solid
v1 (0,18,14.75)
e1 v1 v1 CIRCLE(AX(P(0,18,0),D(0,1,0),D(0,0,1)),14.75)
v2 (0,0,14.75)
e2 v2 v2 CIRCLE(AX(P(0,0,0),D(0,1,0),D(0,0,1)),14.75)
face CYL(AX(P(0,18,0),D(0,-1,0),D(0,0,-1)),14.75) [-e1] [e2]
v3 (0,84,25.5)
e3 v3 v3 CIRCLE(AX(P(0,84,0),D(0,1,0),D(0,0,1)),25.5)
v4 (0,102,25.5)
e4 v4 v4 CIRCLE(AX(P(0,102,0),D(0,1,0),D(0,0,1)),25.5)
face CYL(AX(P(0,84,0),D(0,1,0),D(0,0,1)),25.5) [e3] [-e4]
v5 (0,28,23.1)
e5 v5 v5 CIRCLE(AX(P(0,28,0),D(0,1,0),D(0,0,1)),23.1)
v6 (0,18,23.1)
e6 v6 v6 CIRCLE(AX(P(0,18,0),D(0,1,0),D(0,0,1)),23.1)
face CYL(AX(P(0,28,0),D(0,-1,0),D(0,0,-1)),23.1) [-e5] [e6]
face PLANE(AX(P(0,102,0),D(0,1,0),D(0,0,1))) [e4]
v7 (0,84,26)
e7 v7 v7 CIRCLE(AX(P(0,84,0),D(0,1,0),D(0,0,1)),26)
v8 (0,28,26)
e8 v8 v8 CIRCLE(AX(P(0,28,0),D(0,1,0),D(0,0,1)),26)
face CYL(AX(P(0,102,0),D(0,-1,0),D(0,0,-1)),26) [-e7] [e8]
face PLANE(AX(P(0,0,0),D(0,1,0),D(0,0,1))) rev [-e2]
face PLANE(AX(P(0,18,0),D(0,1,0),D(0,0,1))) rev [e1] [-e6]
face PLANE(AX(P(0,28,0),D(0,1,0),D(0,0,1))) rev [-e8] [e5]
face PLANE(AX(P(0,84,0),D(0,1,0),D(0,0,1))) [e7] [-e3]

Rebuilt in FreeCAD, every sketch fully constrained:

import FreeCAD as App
import Part
import Sketcher
from FreeCAD import Vector
Q = App.Units.Quantity

doc = App.newDocument("Part")
body = doc.addObject("PartDesign::Body", "Body")

# Sketch on XZ plane
sketch1 = body.newObject("Sketcher::SketchObject", "Sketch")
sketch1.AttachmentSupport = (doc.getObject("XZ_Plane"), [""])
sketch1.MapMode = "FlatFace"
sketch1.addGeometry(Part.Circle(Vector(0, 0, 0), Vector(0, 0, 1), 15), False)
sketch1.addConstraint([
    Sketcher.Constraint("Coincident", 0, 3, -1, 1),
    Sketcher.Constraint("Diameter", 0, Q("29.5 mm")),
])
pad1 = body.newObject("PartDesign::Pad", "Pad")
pad1.Profile = sketch1
pad1.Length = 18
pad1.Reversed = True

# Sketch on XZ plane
sketch2 = body.newObject("Sketcher::SketchObject", "Sketch001")
sketch2.AttachmentSupport = (doc.getObject("XZ_Plane"), [""])
sketch2.MapMode = "FlatFace"
sketch2.AttachmentOffset = App.Placement(Vector(0, 0, -18), App.Rotation())
sketch2.addGeometry(Part.Circle(Vector(0, 0, 0), Vector(0, 0, 1), 23), False)
sketch2.addConstraint([
    Sketcher.Constraint("Coincident", 0, 3, -1, 1),
    Sketcher.Constraint("Diameter", 0, Q("46.2 mm")),
])
pad2 = body.newObject("PartDesign::Pad", "Pad001")
pad2.Profile = sketch2
pad2.Length = 10
pad2.Reversed = True

# Sketch on XZ plane
sketch3 = body.newObject("Sketcher::SketchObject", "Sketch002")
sketch3.AttachmentSupport = (doc.getObject("XZ_Plane"), [""])
sketch3.MapMode = "FlatFace"
sketch3.AttachmentOffset = App.Placement(Vector(0, 0, -28), App.Rotation())
sketch3.addGeometry(Part.Circle(Vector(0, 0, 0), Vector(0, 0, 1), 26), False)
sketch3.addConstraint([
    Sketcher.Constraint("Coincident", 0, 3, -1, 1),
    Sketcher.Constraint("Diameter", 0, Q("52 mm")),
])
pad3 = body.newObject("PartDesign::Pad", "Pad002")
pad3.Profile = sketch3
pad3.Length = 74
pad3.Reversed = True

# Sketch on XZ plane
sketch4 = body.newObject("Sketcher::SketchObject", "Sketch003")
sketch4.AttachmentSupport = (doc.getObject("XZ_Plane"), [""])
sketch4.MapMode = "FlatFace"
sketch4.AttachmentOffset = App.Placement(Vector(0, 0, -102), App.Rotation())
sketch4.addGeometry([
    Part.Circle(Vector(0, 0, 0), Vector(0, 0, 1), 26),
    Part.Circle(Vector(0, 0, 0), Vector(0, 0, 1), 26),
], False)
sketch4.addConstraint([
    Sketcher.Constraint("Coincident", 0, 3, -1, 1),
    Sketcher.Constraint("Coincident", 1, 3, -1, 1),
    Sketcher.Constraint("Diameter", 0, Q("52 mm")),
    Sketcher.Constraint("Diameter", 1, Q("51 mm")),
])
pocket1 = body.newObject("PartDesign::Pocket", "Pocket")
pocket1.Profile = sketch4
pocket1.Length = 18
pocket1.Reversed = True

doc.recompute()
